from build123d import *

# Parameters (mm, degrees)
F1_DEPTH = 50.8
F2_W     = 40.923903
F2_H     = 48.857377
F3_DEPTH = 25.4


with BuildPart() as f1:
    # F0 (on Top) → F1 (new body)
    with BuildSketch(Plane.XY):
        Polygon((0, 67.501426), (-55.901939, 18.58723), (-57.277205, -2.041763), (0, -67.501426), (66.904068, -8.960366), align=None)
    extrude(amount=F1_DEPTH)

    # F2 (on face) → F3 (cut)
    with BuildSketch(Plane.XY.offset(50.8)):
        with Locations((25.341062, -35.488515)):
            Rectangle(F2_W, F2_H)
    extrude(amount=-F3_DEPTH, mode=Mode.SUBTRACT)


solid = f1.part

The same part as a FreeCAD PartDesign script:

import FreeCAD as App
import Part
import Sketcher
Q = App.Units.Quantity

doc = App.newDocument("Part")
body = doc.addObject("PartDesign::Body", "Body")

# Sketch on XY plane
sketch1 = body.newObject("Sketcher::SketchObject", "Sketch")
sketch1.AttachmentSupport = (doc.getObject("XY_Plane"), [""])
sketch1.MapMode = "FlatFace"
sketch1.addGeometry([
    Part.LineSegment(App.Vector(0, 68, 0), App.Vector(-56, 19, 0)),  # 0
    Part.LineSegment(App.Vector(-56, 19, 0), App.Vector(-57, -2, 0)),  # 1
    Part.LineSegment(App.Vector(-57, -2, 0), App.Vector(0, -68, 0)),  # 2
    Part.LineSegment(App.Vector(0, -68, 0), App.Vector(67, -9, 0)),  # 3
    Part.LineSegment(App.Vector(67, -9, 0), App.Vector(0, 68, 0)),  # 4
], False)
sketch1.addConstraint([
    Sketcher.Constraint("Coincident", 0, 2, 1, 1),
    Sketcher.Constraint("Coincident", 1, 2, 2, 1),
    Sketcher.Constraint("Coincident", 2, 2, 3, 1),
    Sketcher.Constraint("Coincident", 3, 2, 4, 1),
    Sketcher.Constraint("Coincident", 4, 2, 0, 1),
    Sketcher.Constraint("Symmetric", 2, 2, 4, 2, -1, 1),
    Sketcher.Constraint("PointOnObject", 2, 2, -2),
    Sketcher.Constraint("Perpendicular", 0, 2),
    Sketcher.Constraint("Perpendicular", 2, 3),
    Sketcher.Constraint("Perpendicular", 3, 4),
    Sketcher.Constraint("Distance", 4, Q("4 in")),
    Sketcher.Constraint("Distance", 3, Q("3.5 in")),
    Sketcher.Constraint("Distance", 0, 74.28072),
    Sketcher.Constraint("Distance", 2, 86.98072),
])
pad1 = body.newObject("PartDesign::Pad", "Pad")
pad1.Profile = sketch1
pad1.Length = Q("2 in")

# Sketch on XY plane
sketch2 = body.newObject("Sketcher::SketchObject", "Sketch001")
sketch2.AttachmentSupport = (doc.getObject("XY_Plane"), [""])
sketch2.MapMode = "FlatFace"
sketch2.AttachmentOffset = App.Placement(App.Vector(0, 0, 2 * 25.4), App.Rotation())
sketch2.addGeometry([
    Part.LineSegment(App.Vector(5, -11, 0), App.Vector(5, -60, 0)),
    Part.LineSegment(App.Vector(5, -60, 0), App.Vector(46, -60, 0)),
    Part.LineSegment(App.Vector(46, -60, 0), App.Vector(46, -11, 0)),
    Part.LineSegment(App.Vector(46, -11, 0), App.Vector(5, -11, 0)),
], False)
sketch2.addConstraint([
    Sketcher.Constraint("Coincident", 0, 2, 1, 1),
    Sketcher.Constraint("Coincident", 1, 2, 2, 1),
    Sketcher.Constraint("Coincident", 2, 2, 3, 1),
    Sketcher.Constraint("Coincident", 3, 2, 0, 1),
    Sketcher.Constraint("Vertical", 0),
    Sketcher.Constraint("Horizontal", 1),
    Sketcher.Constraint("Vertical", 2),
    Sketcher.Constraint("Horizontal", 3),
    Sketcher.Constraint("DistanceX", 1, 1, 1, 2, 40.923903),
    Sketcher.Constraint("DistanceY", 0, 2, 0, 1, 48.857377),
    Sketcher.Constraint("DistanceX", -1, 1, 0, 2, 4.879111),
    Sketcher.Constraint("DistanceY", 0, 2, -1, 1, 59.917203),
])
pocket1 = body.newObject("PartDesign::Pocket", "Pocket")
pocket1.Profile = sketch2
pocket1.Length = Q("1 in")

doc.recompute()
